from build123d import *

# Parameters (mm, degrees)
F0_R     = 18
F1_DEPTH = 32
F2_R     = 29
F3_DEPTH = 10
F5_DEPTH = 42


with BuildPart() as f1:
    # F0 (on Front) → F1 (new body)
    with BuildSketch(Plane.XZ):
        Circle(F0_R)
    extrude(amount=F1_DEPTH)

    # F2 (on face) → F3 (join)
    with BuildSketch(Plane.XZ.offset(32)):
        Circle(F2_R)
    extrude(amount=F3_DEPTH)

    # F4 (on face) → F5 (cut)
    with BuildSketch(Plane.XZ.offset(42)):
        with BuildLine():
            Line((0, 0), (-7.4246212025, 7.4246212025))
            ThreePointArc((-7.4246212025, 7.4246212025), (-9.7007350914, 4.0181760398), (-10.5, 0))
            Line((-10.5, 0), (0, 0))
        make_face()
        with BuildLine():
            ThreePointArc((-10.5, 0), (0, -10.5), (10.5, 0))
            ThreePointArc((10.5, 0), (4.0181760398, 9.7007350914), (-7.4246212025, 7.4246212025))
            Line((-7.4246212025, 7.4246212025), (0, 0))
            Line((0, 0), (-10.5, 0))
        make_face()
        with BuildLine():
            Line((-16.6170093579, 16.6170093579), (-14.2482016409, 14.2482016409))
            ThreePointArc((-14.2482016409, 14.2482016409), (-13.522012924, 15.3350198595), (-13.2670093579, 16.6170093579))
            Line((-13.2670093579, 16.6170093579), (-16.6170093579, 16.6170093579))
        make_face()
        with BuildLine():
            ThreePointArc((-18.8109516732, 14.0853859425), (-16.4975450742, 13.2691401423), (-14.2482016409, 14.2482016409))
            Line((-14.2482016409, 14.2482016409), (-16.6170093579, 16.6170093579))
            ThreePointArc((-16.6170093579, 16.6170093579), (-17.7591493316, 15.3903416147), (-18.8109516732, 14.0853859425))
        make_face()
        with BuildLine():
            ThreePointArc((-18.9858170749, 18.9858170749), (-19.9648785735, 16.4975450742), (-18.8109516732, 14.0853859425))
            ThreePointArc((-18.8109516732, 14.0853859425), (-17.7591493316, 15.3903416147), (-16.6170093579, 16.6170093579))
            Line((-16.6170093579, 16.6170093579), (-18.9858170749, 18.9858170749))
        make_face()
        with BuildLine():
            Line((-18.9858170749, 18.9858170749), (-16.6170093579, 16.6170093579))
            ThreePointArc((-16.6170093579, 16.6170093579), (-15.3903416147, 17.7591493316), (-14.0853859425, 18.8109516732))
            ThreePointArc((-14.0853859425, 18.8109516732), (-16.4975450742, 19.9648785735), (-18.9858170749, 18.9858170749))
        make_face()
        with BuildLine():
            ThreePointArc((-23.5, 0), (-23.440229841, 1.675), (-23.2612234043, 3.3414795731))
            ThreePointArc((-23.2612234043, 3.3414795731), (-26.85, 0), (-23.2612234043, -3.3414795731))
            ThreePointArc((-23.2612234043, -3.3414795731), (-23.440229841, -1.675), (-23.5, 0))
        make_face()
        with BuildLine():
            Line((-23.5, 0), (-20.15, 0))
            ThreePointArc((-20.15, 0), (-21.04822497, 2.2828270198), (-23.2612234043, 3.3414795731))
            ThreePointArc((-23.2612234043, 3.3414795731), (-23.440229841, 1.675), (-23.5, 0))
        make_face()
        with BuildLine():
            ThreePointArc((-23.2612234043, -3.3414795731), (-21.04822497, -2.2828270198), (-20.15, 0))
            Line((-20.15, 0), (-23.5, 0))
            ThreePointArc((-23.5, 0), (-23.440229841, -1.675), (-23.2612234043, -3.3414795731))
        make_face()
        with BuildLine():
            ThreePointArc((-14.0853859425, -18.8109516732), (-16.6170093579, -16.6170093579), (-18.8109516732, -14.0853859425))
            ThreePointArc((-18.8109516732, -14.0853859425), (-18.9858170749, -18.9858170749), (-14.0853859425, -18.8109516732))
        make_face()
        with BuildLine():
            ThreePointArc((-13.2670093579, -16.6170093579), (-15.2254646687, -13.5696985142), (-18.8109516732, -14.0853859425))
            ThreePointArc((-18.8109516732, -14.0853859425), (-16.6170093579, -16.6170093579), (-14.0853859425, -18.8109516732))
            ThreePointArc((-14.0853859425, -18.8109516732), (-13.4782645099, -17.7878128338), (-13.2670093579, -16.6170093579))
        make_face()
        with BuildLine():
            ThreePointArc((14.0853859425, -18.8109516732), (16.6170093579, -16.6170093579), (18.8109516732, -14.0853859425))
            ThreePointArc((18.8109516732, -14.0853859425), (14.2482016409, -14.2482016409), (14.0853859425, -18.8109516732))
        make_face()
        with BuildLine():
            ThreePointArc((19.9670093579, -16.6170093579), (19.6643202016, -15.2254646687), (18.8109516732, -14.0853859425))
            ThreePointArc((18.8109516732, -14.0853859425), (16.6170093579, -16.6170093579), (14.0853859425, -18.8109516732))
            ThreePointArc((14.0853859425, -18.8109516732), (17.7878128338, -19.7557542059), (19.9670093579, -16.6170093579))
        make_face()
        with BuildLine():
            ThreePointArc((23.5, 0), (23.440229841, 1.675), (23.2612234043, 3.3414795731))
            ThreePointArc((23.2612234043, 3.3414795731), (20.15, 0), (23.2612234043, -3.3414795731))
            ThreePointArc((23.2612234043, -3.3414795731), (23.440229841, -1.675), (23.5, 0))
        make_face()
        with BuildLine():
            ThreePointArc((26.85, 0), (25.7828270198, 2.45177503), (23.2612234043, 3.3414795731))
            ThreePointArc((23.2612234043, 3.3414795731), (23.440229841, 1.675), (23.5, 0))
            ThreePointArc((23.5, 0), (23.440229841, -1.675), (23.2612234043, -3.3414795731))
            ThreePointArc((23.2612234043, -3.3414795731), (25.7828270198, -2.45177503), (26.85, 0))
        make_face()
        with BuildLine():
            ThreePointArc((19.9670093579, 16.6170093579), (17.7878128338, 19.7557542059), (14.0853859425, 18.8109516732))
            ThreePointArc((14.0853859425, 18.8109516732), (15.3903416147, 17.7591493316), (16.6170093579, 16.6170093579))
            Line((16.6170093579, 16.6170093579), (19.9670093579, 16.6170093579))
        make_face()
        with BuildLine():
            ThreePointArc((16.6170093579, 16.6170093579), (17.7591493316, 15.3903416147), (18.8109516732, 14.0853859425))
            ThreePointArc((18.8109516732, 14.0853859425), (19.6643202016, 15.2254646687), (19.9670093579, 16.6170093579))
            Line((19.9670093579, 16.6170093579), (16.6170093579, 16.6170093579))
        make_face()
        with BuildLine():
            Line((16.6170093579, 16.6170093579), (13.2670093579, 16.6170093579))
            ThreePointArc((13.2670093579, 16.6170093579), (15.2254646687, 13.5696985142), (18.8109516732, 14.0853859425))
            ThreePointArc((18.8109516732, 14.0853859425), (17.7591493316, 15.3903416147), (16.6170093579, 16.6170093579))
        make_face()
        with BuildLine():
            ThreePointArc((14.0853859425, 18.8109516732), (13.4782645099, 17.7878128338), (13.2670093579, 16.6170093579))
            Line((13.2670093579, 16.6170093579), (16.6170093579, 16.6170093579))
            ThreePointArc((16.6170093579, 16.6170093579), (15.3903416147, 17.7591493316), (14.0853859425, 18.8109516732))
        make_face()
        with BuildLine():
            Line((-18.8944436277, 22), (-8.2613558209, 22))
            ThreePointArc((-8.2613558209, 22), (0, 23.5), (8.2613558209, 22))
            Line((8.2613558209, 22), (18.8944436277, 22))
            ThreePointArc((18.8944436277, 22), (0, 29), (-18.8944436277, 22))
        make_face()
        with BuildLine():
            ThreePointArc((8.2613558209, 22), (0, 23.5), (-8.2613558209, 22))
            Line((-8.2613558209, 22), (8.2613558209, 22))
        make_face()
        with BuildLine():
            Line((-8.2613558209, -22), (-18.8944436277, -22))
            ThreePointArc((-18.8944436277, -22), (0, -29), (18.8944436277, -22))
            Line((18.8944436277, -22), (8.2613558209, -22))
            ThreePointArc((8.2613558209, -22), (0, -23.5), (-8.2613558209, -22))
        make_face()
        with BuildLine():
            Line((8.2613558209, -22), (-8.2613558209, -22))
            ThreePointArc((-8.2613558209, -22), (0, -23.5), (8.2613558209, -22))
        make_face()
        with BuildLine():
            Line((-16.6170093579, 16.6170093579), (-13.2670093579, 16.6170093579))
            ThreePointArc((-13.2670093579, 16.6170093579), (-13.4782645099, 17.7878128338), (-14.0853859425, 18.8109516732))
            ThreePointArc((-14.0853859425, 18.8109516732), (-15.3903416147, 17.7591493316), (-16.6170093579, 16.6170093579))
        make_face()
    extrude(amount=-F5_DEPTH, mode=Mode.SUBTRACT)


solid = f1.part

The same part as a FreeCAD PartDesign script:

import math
import FreeCAD as App
import Part
import Sketcher
Q = App.Units.Quantity

doc = App.newDocument("Part")
params = doc.addObject("Spreadsheet::Sheet", "Params")
for row, (alias, value) in enumerate([
    ("sketch1_diameter", "36 mm"),
    ("pad1_length", "32 mm"),
    ("sketch2_diameter", "58 mm"),
    ("pad2_length", "10 mm"),
    ("sketch3_diameter", "21 mm"),
    ("sketch3_radius", "29 mm"),
    ("sketch3_radius2", "3.35 mm"),
    ("pocket1_length", "42 mm"),
], start=1):
    params.set(f"A{row}", alias)
    params.set(f"B{row}", "=" + value)
    params.setAlias(f"B{row}", alias)

body = doc.addObject("PartDesign::Body", "Body")

# Sketch on XZ plane
sketch1 = body.newObject("Sketcher::SketchObject", "Sketch")
sketch1.AttachmentSupport = (doc.getObject("XZ_Plane"), [""])
sketch1.MapMode = "FlatFace"
sketch1.addGeometry(Part.Circle(App.Vector(0, 0, 0), App.Vector(0, 0, 1), 18), False)
sketch1.addConstraint([
    Sketcher.Constraint("Coincident", 0, 3, -1, 1),
    Sketcher.Constraint("Diameter", 0, Q("36 mm")),
])
sketch1.setExpression("Constraints[1]", "Params.sketch1_diameter")
pad1 = body.newObject("PartDesign::Pad", "Pad")
pad1.Profile = sketch1
pad1.setExpression("Length", "Params.pad1_length")

# Sketch on XZ plane
sketch2 = body.newObject("Sketcher::SketchObject", "Sketch001")
sketch2.AttachmentSupport = (doc.getObject("XZ_Plane"), [""])
sketch2.MapMode = "FlatFace"
sketch2.AttachmentOffset = App.Placement(App.Vector(0, 0, 32), App.Rotation())
sketch2.addGeometry(Part.Circle(App.Vector(0, 0, 0), App.Vector(0, 0, 1), 29), False)
sketch2.addConstraint([
    Sketcher.Constraint("Coincident", 0, 3, -1, 1),
    Sketcher.Constraint("Diameter", 0, Q("58 mm")),
])
sketch2.setExpression("Constraints[1]", "Params.sketch2_diameter")
pad2 = body.newObject("PartDesign::Pad", "Pad001")
pad2.Profile = sketch2
pad2.setExpression("Length", "Params.pad2_length")

# Sketch on XZ plane
sketch3 = body.newObject("Sketcher::SketchObject", "Sketch002")
sketch3.AttachmentSupport = (doc.getObject("XZ_Plane"), [""])
sketch3.MapMode = "FlatFace"
sketch3.AttachmentOffset = App.Placement(App.Vector(0, 0, 42), App.Rotation())
sketch3.addGeometry([
    Part.Circle(App.Vector(0, 0, 0), App.Vector(0, 0, 1), 10.5),  # 0
    Part.ArcOfCircle(Part.Circle(App.Vector(-16.6, 16.6, 0), App.Vector(0, 0, 1), 3.4), math.radians(-45), math.radians(0)),  # 1
    Part.ArcOfCircle(Part.Circle(App.Vector(-16.6, 16.6, 0), App.Vector(0, 0, 1), 3.4), math.radians(0), math.radians(41)),  # 2
    Part.ArcOfCircle(Part.Circle(App.Vector(-16.6, 16.6, 0), App.Vector(0, 0, 1), 3.4), math.radians(41), math.radians(135)),  # 3
    Part.ArcOfCircle(Part.Circle(App.Vector(-16.6, 16.6, 0), App.Vector(0, 0, 1), 3.4), math.radians(135), math.radians(229)),  # 4
    Part.ArcOfCircle(Part.Circle(App.Vector(-16.6, 16.6, 0), App.Vector(0, 0, 1), 3.4), math.radians(-131), math.radians(-45)),  # 5
    Part.ArcOfCircle(Part.Circle(App.Vector(-23.5, 0, 0), App.Vector(0, 0, 1), 3.4), math.radians(86), math.radians(274)),  # 6
    Part.ArcOfCircle(Part.Circle(App.Vector(-23.5, 0, 0), App.Vector(0, 0, 1), 3.4), math.radians(-86), math.radians(0)),  # 7
    Part.ArcOfCircle(Part.Circle(App.Vector(-23.5, 0, 0), App.Vector(0, 0, 1), 3.4), math.radians(0), math.radians(86)),  # 8
    Part.ArcOfCircle(Part.Circle(App.Vector(-16.6, -16.6, 0), App.Vector(0, 0, 1), 3.4), math.radians(131), math.radians(319)),  # 9
    Part.ArcOfCircle(Part.Circle(App.Vector(-16.6, -16.6, 0), App.Vector(0, 0, 1), 3.4), math.radians(-41), math.radians(0)),  # 10
    Part.ArcOfCircle(Part.Circle(App.Vector(-16.6, -16.6, 0), App.Vector(0, 0, 1), 3.4), math.radians(0), math.radians(131)),  # 11
    Part.ArcOfCircle(Part.Circle(App.Vector(16.6, -16.6, 0), App.Vector(0, 0, 1), 3.4), math.radians(49), math.radians(221)),  # 12
    Part.ArcOfCircle(Part.Circle(App.Vector(16.6, -16.6, 0), App.Vector(0, 0, 1), 3.4), math.radians(-139), math.radians(0)),  # 13
    Part.ArcOfCircle(Part.Circle(App.Vector(16.6, -16.6, 0), App.Vector(0, 0, 1), 3.4), math.radians(0), math.radians(49)),  # 14
    Part.ArcOfCircle(Part.Circle(App.Vector(23.5, 0, 0), App.Vector(0, 0, 1), 3.4), math.radians(94), math.radians(266)),  # 15
    Part.ArcOfCircle(Part.Circle(App.Vector(23.5, 0, 0), App.Vector(0, 0, 1), 3.4), math.radians(-94), math.radians(0)),  # 16
    Part.ArcOfCircle(Part.Circle(App.Vector(23.5, 0, 0), App.Vector(0, 0, 1), 3.4), math.radians(0), math.radians(94)),  # 17
    Part.ArcOfCircle(Part.Circle(App.Vector(16.6, 16.6, 0), App.Vector(0, 0, 1), 3.4), math.radians(0), math.radians(139)),  # 18
    Part.ArcOfCircle(Part.Circle(App.Vector(16.6, 16.6, 0), App.Vector(0, 0, 1), 3.4), math.radians(139), math.radians(180)),  # 19
    Part.ArcOfCircle(Part.Circle(App.Vector(16.6, 16.6, 0), App.Vector(0, 0, 1), 3.4), math.radians(180), math.radians(311)),  # 20
    Part.ArcOfCircle(Part.Circle(App.Vector(16.6, 16.6, 0), App.Vector(0, 0, 1), 3.4), math.radians(-49), math.radians(0)),  # 21
    Part.LineSegment(App.Vector(-18.9, 22, 0), App.Vector(18.9, 22, 0)),  # 22
    Part.ArcOfCircle(Part.Circle(App.Vector(0, 0, 0), App.Vector(0, 0, 1), 29), math.radians(49), math.radians(131)),  # 23
    Part.ArcOfCircle(Part.Circle(App.Vector(0, 0, 0), App.Vector(0, 0, 1), 29), math.radians(-131), math.radians(-49)),  # 24
    Part.LineSegment(App.Vector(18.9, -22, 0), App.Vector(-18.9, -22, 0)),  # 25
], False)
sketch3.addConstraint([
    Sketcher.Constraint("Tangent", 1, 2, 2, 1),
    Sketcher.Constraint("Tangent", 2, 2, 3, 1),
    Sketcher.Constraint("Tangent", 3, 2, 4, 1),
    Sketcher.Constraint("Tangent", 4, 2, 5, 1),
    Sketcher.Constraint("Tangent", 5, 2, 1, 1),
    Sketcher.Constraint("Tangent", 6, 2, 7, 1),
    Sketcher.Constraint("Tangent", 7, 2, 8, 1),
    Sketcher.Constraint("Tangent", 8, 2, 6, 1),
    Sketcher.Constraint("Tangent", 9, 2, 10, 1),
    Sketcher.Constraint("Tangent", 10, 2, 11, 1),
    Sketcher.Constraint("Tangent", 11, 2, 9, 1),
    Sketcher.Constraint("Tangent", 12, 2, 13, 1),
    Sketcher.Constraint("Tangent", 13, 2, 14, 1),
    Sketcher.Constraint("Tangent", 14, 2, 12, 1),
    Sketcher.Constraint("Tangent", 15, 2, 16, 1),
    Sketcher.Constraint("Tangent", 16, 2, 17, 1),
    Sketcher.Constraint("Tangent", 17, 2, 15, 1),
    Sketcher.Constraint("Tangent", 18, 2, 19, 1),
    Sketcher.Constraint("Tangent", 19, 2, 20, 1),
    Sketcher.Constraint("Tangent", 20, 2, 21, 1),
    Sketcher.Constraint("Tangent", 21, 2, 18, 1),
    Sketcher.Constraint("Coincident", 22, 1, 23, 2),
    Sketcher.Constraint("Coincident", 23, 1, 22, 2),
    Sketcher.Constraint("Coincident", 24, 1, 25, 2),
    Sketcher.Constraint("Coincident", 25, 1, 24, 2),
    Sketcher.Constraint("Horizontal", 22),
    Sketcher.Constraint("Horizontal", 25),
    Sketcher.Constraint("Coincident", 0, 3, -1, 1),
    Sketcher.Constraint("Coincident", 23, 3, -1, 1),
    Sketcher.Constraint("Coincident", 24, 3, -1, 1),
    Sketcher.Constraint("Coincident", 3, 3, 1, 3),
    Sketcher.Constraint("Equal", 5, 6),
    Sketcher.Constraint("Equal", 8, 9),
    Sketcher.Constraint("Equal", 11, 12),
    Sketcher.Constraint("Equal", 14, 15),
    Sketcher.Constraint("Equal", 17, 18),
    Sketcher.Constraint("Equal", 18, 19),
    Sketcher.Constraint("Equal", 23, 24),
    Sketcher.Constraint("Symmetric", 1, 3, 12, 3, -1, 1),
    Sketcher.Constraint("Symmetric", 6, 3, 15, 3, -1, 1),
    Sketcher.Constraint("Symmetric", 9, 3, 18, 3, -1, 1),
    Sketcher.Constraint("Symmetric", 9, 3, 12, 3, -2),
    Sketcher.Constraint("Symmetric", 6, 2, 15, 2, -2),
    Sketcher.Constraint("PointOnObject", 7, 2, -1),
    Sketcher.Constraint("PointOnObject", 16, 2, -1),
    Sketcher.Constraint("Horizontal", 21, 3, 1, 2),
    Sketcher.Constraint("Horizontal", 14, 3, 10, 2),
    Sketcher.Constraint("Horizontal", 9, 2, 12, 2),
    Sketcher.Constraint("Horizontal", 10, 2, 13, 2),
    Sketcher.Constraint("Horizontal", 11, 2, 14, 2),
    Sketcher.Constraint("Horizontal", 8, 2, 17, 2),
    Sketcher.Constraint("Horizontal", 2, 2, 18, 2),
    Sketcher.Constraint("Horizontal", 1, 2, 19, 2),
    Sketcher.Constraint("Horizontal", 4, 2, 20, 2),
    Sketcher.Constraint("Horizontal", 19, 2, 21, 2),
    Sketcher.Constraint("Vertical", 6, 2, 8, 2),
    Sketcher.Constraint("Vertical", 2, 2, 9, 2),
    Sketcher.Constraint("Vertical", 4, 2, 11, 2),
    Sketcher.Constraint("Vertical", 22, 1, 24, 1),
    Sketcher.Constraint("Diameter", 0, Q("21 mm")),
    Sketcher.Constraint("Radius", 23, Q("29 mm")),
    Sketcher.Constraint("Radius", 1, Q("3.35 mm")),
    Sketcher.Constraint("DistanceY", -1, 1, 22, 1, Q("22 mm")),
    Sketcher.Constraint("DistanceX", 6, 3, -1, 1, Q("23.5 mm")),
    Sketcher.Constraint("DistanceX", 5, 2, -1, 1, Q("14.248202 mm")),
    Sketcher.Constraint("DistanceY", -1, 1, 5, 2, Q("14.248202 mm")),
    Sketcher.Constraint("DistanceX", 1, 3, -1, 1, Q("16.617009 mm")),
    Sketcher.Constraint("DistanceY", -1, 1, 2, 2, Q("18.810952 mm")),
    Sketcher.Constraint("DistanceX", 4, 2, -1, 1, Q("18.810952 mm")),
    Sketcher.Constraint("DistanceY", 6, 2, -1, 1, Q("3.34148 mm")),
    Sketcher.Constraint("DistanceX", 3, 2, -1, 1, Q("18.985817 mm")),
])
sketch3.setExpression("Constraints[59]", "Params.sketch3_diameter")
sketch3.setExpression("Constraints[60]", "Params.sketch3_radius")
sketch3.setExpression("Constraints[61]", "Params.sketch3_radius2")
pocket1 = body.newObject("PartDesign::Pocket", "Pocket")
pocket1.Profile = sketch3
pocket1.setExpression("Length", "Params.pocket1_length")

doc.recompute()
